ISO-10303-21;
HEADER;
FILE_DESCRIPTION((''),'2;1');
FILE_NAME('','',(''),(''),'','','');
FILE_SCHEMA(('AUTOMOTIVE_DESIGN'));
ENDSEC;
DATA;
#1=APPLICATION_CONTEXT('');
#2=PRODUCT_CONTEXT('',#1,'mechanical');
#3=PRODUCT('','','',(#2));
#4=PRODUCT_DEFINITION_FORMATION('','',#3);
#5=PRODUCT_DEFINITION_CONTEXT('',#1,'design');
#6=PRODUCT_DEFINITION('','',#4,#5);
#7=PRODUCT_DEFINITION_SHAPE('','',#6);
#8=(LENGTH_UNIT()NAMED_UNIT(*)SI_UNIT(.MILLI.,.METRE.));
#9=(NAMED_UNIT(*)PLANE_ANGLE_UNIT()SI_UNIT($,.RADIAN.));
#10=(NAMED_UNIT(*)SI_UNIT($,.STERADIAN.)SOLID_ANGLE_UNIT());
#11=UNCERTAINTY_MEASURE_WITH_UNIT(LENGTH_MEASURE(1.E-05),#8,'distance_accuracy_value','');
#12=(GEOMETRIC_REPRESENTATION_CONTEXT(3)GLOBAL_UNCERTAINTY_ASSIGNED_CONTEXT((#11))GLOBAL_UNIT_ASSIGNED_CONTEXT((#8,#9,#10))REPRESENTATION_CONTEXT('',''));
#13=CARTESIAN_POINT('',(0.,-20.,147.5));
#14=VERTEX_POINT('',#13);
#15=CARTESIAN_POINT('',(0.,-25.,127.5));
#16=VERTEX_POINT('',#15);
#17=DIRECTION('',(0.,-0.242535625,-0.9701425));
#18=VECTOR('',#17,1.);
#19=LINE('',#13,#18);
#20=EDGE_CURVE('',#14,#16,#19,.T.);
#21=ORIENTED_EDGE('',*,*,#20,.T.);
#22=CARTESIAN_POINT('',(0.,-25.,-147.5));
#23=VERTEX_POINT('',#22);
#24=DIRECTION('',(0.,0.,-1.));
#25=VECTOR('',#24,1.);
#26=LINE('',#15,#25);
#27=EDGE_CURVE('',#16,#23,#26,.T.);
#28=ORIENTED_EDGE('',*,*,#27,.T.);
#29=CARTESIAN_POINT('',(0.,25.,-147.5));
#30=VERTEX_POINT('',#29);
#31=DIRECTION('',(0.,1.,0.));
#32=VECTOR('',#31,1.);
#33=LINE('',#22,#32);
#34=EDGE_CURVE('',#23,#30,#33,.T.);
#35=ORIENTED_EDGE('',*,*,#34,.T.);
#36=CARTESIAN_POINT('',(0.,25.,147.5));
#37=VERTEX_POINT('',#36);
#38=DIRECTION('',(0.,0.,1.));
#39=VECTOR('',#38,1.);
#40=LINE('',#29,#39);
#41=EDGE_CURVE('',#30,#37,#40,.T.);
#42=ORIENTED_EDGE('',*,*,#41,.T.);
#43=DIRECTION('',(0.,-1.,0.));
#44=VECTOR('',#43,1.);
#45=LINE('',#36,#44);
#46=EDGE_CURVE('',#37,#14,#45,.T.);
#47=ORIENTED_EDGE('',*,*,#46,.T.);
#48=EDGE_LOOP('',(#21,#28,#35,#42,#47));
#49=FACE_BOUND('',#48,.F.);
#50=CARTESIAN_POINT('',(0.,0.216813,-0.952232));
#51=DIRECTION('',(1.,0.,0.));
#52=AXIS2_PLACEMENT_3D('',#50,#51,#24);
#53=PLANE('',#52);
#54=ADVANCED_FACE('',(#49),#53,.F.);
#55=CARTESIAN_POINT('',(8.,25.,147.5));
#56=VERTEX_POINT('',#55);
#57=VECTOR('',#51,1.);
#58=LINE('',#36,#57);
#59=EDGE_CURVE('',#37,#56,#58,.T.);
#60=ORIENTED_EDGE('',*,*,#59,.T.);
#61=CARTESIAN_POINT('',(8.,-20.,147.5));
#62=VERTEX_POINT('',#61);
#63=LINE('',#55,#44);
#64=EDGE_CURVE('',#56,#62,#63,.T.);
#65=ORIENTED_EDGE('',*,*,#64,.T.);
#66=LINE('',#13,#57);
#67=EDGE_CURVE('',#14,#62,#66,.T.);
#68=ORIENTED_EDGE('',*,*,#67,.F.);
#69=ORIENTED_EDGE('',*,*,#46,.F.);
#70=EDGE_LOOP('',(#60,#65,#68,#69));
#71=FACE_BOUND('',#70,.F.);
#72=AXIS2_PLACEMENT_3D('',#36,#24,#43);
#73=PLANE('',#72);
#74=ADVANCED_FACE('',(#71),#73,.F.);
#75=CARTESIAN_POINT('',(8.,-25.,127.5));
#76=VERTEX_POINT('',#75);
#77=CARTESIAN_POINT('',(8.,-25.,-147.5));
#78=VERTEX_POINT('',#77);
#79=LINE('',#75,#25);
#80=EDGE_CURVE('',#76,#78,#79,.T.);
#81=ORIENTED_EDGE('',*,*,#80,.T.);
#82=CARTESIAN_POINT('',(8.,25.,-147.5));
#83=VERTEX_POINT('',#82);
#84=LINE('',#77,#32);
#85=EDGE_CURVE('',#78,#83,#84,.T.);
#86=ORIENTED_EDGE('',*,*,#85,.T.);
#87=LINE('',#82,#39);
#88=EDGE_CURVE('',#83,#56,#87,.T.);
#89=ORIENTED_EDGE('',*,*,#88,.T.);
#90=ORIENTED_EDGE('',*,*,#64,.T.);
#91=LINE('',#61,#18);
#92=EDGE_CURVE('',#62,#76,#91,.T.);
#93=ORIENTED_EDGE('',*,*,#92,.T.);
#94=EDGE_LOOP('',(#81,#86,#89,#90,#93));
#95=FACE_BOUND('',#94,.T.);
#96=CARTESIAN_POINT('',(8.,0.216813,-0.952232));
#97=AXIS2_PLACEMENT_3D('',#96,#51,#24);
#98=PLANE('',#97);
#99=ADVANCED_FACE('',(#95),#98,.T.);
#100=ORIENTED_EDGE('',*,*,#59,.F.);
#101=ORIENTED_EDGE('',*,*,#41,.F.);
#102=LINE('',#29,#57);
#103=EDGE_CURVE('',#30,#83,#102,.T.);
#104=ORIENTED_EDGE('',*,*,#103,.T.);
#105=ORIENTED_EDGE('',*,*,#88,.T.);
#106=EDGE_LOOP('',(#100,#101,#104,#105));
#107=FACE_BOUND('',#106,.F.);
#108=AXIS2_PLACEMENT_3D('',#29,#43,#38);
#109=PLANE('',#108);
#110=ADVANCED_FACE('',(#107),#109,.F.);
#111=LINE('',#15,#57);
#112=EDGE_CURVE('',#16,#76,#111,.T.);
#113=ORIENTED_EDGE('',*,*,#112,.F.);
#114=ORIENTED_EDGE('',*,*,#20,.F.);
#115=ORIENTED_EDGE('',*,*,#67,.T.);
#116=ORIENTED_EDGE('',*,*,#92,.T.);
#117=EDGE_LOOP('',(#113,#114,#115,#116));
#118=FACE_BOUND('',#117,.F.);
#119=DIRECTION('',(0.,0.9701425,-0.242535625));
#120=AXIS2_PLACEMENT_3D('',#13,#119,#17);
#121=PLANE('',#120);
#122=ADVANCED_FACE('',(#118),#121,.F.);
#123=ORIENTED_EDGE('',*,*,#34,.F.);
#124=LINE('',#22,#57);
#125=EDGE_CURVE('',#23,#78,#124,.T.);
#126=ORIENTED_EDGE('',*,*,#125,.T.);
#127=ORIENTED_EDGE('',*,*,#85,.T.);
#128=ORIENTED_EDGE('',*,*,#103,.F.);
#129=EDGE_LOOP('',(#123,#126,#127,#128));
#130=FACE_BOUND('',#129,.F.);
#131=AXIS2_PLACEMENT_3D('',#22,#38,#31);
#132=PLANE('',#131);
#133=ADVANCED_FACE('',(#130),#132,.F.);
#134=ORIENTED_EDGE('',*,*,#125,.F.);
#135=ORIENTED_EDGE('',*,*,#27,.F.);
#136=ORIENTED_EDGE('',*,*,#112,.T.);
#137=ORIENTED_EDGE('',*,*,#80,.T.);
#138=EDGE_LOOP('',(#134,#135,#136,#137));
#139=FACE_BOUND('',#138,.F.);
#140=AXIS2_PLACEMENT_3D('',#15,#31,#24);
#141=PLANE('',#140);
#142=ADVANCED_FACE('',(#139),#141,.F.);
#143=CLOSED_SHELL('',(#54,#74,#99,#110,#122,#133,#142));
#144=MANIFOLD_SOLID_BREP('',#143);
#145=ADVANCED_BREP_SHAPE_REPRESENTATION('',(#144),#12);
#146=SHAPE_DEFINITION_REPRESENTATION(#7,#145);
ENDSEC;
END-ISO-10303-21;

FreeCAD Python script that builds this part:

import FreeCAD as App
import Part
import Sketcher

V = App.Vector
Q = App.Units.Quantity


def add_polygon(sketch, points):
    """Adds a closed chain of lines whose ends are joined by coincident constraints."""
    first, n = sketch.GeometryCount, len(points)
    for a, b in zip(points, points[1:] + points[:1]):
        sketch.addGeometry(Part.LineSegment(App.Vector(*a, 0), App.Vector(*b, 0)), False)
    for i in range(n):
        sketch.addConstraint(Sketcher.Constraint("Coincident", first + i, 2, first + (i + 1) % n, 1))

doc = App.newDocument("Part")
body = doc.addObject("PartDesign::Body", "Body")

# Sketch on YZ plane
sketch1 = body.newObject("Sketcher::SketchObject", "Sketch")
sketch1.AttachmentSupport = (doc.getObject("YZ_Plane"), [""])
sketch1.MapMode = "FlatFace"
add_polygon(sketch1, [(-20, 148), (-25, 128), (-25, -148), (25, -148), (25, 148)])  # lines 0-4
sketch1.addConstraint([
    Sketcher.Constraint("Vertical", 1),
    Sketcher.Constraint("Horizontal", 2),
    Sketcher.Constraint("Vertical", 3),
    Sketcher.Constraint("Horizontal", 4),
    Sketcher.Constraint("Symmetric", 1, 2, 3, 2, -1, 1),
    Sketcher.Constraint("DistanceX", 2, 1, 2, 2, Q("50 mm")),
    Sketcher.Constraint("DistanceX", 4, 2, 4, 1, Q("45 mm")),
    Sketcher.Constraint("DistanceY", 1, 2, 1, 1, Q("275 mm")),
    Sketcher.Constraint("DistanceY", 3, 1, 3, 2, Q("295 mm")),
])
pad1 = body.newObject("PartDesign::Pad", "Pad")
pad1.Profile = sketch1
pad1.Length = 8

doc.recompute()
